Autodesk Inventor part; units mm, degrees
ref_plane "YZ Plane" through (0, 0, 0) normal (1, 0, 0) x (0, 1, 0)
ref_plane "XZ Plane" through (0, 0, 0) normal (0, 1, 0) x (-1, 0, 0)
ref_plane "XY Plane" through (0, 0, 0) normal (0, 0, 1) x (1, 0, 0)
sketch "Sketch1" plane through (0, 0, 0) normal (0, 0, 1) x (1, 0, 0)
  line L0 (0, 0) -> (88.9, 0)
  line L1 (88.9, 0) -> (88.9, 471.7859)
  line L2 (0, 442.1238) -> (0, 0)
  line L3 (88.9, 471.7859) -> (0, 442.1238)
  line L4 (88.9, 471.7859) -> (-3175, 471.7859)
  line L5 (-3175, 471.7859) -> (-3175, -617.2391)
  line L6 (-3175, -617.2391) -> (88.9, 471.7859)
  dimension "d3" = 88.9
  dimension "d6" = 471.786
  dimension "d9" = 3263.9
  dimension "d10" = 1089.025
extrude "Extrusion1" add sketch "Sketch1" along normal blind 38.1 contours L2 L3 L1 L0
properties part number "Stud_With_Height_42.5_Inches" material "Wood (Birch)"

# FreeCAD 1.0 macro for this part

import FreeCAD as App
import Part
import Sketcher
Q = App.Units.Quantity


def add_polygon(sketch, points):
    """Adds a closed chain of lines whose ends are joined by coincident constraints."""
    first, n = sketch.GeometryCount, len(points)
    for a, b in zip(points, points[1:] + points[:1]):
        sketch.addGeometry(Part.LineSegment(App.Vector(*a, 0), App.Vector(*b, 0)), False)
    for i in range(n):
        sketch.addConstraint(Sketcher.Constraint("Coincident", first + i, 2, first + (i + 1) % n, 1))

doc = App.newDocument("Part")
body = doc.addObject("PartDesign::Body", "Body")

# Sketch on XY plane
sketch1 = body.newObject("Sketcher::SketchObject", "Sketch")
sketch1.AttachmentSupport = (doc.getObject("XY_Plane"), [""])
sketch1.MapMode = "FlatFace"
add_polygon(sketch1, [(0, 442), (0, 0), (89, 0), (89, 472)])  # lines 0-3
sketch1.addConstraint(Sketcher.Constraint("Vertical", 0))
sketch1.addConstraint(Sketcher.Constraint("Horizontal", 1))
sketch1.addConstraint(Sketcher.Constraint("Vertical", 2))
sketch1.addConstraint(Sketcher.Constraint("Coincident", 0, 2, -1, 1))
sketch1.addConstraint(Sketcher.Constraint("DistanceX", 1, 1, 1, 2, Q("3.5 in")))
sketch1.addConstraint(Sketcher.Constraint("DistanceY", 2, 1, 2, 2, 471.786))
sketch1.addConstraint(Sketcher.Constraint("DistanceY", 0, 2, 0, 1, 442.1238))
pad1 = body.newObject("PartDesign::Pad", "Pad")
pad1.Profile = sketch1
pad1.Length = Q("1.5 in")

doc.recompute()
